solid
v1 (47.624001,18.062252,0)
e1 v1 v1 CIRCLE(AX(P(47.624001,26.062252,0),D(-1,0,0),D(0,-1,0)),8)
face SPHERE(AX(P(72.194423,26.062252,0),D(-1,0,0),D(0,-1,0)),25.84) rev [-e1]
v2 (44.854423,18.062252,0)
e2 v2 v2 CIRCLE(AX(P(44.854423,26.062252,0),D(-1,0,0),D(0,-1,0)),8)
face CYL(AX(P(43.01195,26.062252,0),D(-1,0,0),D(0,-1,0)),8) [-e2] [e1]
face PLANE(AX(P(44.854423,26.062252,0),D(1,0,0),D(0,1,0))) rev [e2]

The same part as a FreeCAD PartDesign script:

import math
import FreeCAD as App
import Part
import Sketcher
Q = App.Units.Quantity

doc = App.newDocument("Part")
body = doc.addObject("PartDesign::Body", "Body")

sketch1 = body.newObject("Sketcher::SketchObject", "Sketch")
sketch1.AttachmentSupport = (doc.getObject("XY_Plane"), [""])
sketch1.MapMode = "FlatFace"
sketch1.addGeometry([
    Part.LineSegment(App.Vector(44.9, 34.1, 0), App.Vector(44.9, 26.1, 0)),
    Part.LineSegment(App.Vector(44.9, 26.1, 0), App.Vector(46.4, 26.1, 0)),
    Part.ArcOfCircle(Part.Circle(App.Vector(72.2, 26.1, 0), App.Vector(0, 0, 1), 25.8), math.radians(161.97), math.radians(180)),
    Part.LineSegment(App.Vector(47.6, 34.1, 0), App.Vector(44.9, 34.1, 0)),
], False)
sketch1.addGeometry(Part.LineSegment(App.Vector(44.9, 26.1, 0), App.Vector(72.2, 26.1, 0)), True)
sketch1.addConstraint([
    Sketcher.Constraint("Coincident", 0, 2, 1, 1),
    Sketcher.Constraint("Coincident", 1, 2, 2, 2),
    Sketcher.Constraint("Coincident", 2, 1, 3, 1),
    Sketcher.Constraint("Coincident", 3, 2, 0, 1),
    Sketcher.Constraint("Vertical", 0),
    Sketcher.Constraint("Horizontal", 1),
    Sketcher.Constraint("Horizontal", 3),
    Sketcher.Constraint("Horizontal", 4),
    Sketcher.Constraint("Coincident", 4, 1, 0, 2),
    Sketcher.Constraint("Coincident", 4, 2, 2, 3),
    Sketcher.Constraint("DistanceY", 0, 2, 0, 1, Q("8 mm")),
    Sketcher.Constraint("Radius", 2, Q("25.84 mm")),
    Sketcher.Constraint("DistanceX", 1, 1, 1, 2, Q("1.5 mm")),
    Sketcher.Constraint("DistanceX", -1, 1, 2, 1, Q("47.624001 mm")),
    Sketcher.Constraint("DistanceY", -1, 1, 2, 3, Q("26.062252 mm")),
])
revolution = body.newObject("PartDesign::Revolution", "Revolution")
revolution.Profile = sketch1
revolution.ReferenceAxis = (sketch1, ["Axis0"])
revolution.Angle = 360

doc.recompute()
